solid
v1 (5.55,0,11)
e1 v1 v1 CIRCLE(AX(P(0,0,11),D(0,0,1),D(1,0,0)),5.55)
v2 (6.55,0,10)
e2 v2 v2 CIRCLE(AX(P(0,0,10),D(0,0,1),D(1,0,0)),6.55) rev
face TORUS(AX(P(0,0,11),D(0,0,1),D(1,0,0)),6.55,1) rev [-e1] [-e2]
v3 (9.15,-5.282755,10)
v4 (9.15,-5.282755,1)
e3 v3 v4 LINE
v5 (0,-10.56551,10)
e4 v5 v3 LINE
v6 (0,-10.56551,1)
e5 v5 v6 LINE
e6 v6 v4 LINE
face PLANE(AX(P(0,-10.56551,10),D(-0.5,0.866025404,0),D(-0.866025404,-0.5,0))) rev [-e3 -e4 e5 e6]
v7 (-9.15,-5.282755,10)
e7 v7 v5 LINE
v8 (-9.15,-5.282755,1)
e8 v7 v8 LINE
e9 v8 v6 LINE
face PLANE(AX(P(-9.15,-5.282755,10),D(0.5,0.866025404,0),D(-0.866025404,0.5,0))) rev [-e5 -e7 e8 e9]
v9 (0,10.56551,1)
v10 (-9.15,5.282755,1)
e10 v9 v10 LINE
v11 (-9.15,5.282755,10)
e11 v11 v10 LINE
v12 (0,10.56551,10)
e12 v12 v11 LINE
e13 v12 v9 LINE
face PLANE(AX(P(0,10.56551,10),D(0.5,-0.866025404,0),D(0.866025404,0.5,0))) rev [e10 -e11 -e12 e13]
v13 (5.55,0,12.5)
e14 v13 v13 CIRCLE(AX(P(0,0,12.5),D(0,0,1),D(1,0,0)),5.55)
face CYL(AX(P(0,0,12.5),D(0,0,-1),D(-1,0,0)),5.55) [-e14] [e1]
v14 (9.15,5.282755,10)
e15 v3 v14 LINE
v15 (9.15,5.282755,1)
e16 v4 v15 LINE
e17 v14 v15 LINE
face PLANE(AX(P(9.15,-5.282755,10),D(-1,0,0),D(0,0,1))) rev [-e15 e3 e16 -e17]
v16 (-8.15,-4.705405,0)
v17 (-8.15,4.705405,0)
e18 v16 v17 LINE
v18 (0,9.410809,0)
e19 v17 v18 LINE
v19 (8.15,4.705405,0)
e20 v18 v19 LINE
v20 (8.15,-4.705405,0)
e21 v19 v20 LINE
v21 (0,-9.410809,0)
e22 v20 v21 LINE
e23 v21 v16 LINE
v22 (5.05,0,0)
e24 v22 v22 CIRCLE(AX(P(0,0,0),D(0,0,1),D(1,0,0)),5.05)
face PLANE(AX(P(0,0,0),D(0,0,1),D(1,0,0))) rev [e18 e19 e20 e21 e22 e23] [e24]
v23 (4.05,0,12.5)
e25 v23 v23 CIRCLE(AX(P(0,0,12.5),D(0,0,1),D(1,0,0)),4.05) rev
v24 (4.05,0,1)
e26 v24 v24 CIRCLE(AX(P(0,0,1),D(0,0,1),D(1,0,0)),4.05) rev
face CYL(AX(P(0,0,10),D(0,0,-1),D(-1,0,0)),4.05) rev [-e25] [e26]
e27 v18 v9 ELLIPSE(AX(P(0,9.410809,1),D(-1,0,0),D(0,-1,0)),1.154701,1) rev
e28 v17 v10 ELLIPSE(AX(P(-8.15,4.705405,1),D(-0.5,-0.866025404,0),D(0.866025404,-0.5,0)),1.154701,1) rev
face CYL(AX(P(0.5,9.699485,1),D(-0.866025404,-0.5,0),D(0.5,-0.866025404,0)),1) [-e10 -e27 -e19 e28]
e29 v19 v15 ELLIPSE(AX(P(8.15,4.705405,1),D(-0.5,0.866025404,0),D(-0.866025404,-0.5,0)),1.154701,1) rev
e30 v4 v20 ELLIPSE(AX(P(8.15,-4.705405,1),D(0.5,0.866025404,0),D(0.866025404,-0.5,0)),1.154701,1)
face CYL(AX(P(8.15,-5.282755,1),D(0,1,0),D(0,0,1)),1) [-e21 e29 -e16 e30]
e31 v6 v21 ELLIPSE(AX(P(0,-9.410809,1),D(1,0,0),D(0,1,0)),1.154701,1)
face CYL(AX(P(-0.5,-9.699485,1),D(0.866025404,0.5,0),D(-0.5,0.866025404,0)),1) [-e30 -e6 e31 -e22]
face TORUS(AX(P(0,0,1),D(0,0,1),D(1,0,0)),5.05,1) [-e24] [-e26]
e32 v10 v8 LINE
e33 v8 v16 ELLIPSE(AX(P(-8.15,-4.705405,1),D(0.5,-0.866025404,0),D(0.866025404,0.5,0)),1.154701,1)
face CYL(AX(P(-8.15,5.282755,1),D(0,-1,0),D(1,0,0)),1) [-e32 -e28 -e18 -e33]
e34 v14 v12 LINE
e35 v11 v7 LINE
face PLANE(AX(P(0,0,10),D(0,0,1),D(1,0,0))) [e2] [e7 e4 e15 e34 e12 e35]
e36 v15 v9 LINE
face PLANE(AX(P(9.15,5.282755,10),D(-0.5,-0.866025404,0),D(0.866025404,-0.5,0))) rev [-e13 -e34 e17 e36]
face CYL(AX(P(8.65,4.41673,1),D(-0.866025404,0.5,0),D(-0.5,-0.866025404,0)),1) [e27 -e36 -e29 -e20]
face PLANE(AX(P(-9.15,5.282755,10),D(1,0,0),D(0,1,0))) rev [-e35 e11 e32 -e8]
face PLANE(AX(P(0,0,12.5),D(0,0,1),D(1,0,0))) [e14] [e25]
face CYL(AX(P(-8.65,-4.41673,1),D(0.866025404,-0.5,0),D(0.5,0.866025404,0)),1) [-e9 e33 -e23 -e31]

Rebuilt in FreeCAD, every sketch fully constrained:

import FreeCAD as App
import Part
import Sketcher
Q = App.Units.Quantity


def edges_at(feature, points):
    """Names of the edges that pass closest to the given points."""
    edges = feature.Shape.Edges
    near = lambda p: min(range(len(edges)), key=lambda i: edges[i].distToShape(Part.Vertex(*p))[0])
    return sorted({f"Edge{near(p) + 1}" for p in points})

doc = App.newDocument("Part")
body = doc.addObject("PartDesign::Body", "Body")

# Sketch on XY plane
sketch1 = body.newObject("Sketcher::SketchObject", "Sketch")
sketch1.AttachmentSupport = (doc.getObject("XY_Plane"), [""])
sketch1.MapMode = "FlatFace"
sketch1.addGeometry(Part.LineSegment(App.Vector(9.2, -5.3, 0), App.Vector(9.2, 5.3, 0)), False)
sketch1.addGeometry(Part.LineSegment(App.Vector(9.2, 5.3, 0), App.Vector(0, 10.6, 0)), False)
sketch1.addGeometry(Part.LineSegment(App.Vector(0, 10.6, 0), App.Vector(-9.2, 5.3, 0)), False)
sketch1.addGeometry(Part.LineSegment(App.Vector(-9.2, 5.3, 0), App.Vector(-9.2, -5.3, 0)), False)
sketch1.addGeometry(Part.LineSegment(App.Vector(-9.2, -5.3, 0), App.Vector(0, -10.6, 0)), False)
sketch1.addGeometry(Part.LineSegment(App.Vector(0, -10.6, 0), App.Vector(9.2, -5.3, 0)), False)
sketch1.addGeometry(Part.Circle(App.Vector(0, 0, 0), App.Vector(0, 0, 1), 4), False)
sketch1.addConstraint(Sketcher.Constraint("Coincident", 0, 2, 1, 1))
sketch1.addConstraint(Sketcher.Constraint("Coincident", 1, 2, 2, 1))
sketch1.addConstraint(Sketcher.Constraint("Coincident", 2, 2, 3, 1))
sketch1.addConstraint(Sketcher.Constraint("Coincident", 3, 2, 4, 1))
sketch1.addConstraint(Sketcher.Constraint("Coincident", 4, 2, 5, 1))
sketch1.addConstraint(Sketcher.Constraint("Coincident", 5, 2, 0, 1))
sketch1.addConstraint(Sketcher.Constraint("Vertical", 0))
sketch1.addConstraint(Sketcher.Constraint("Vertical", 3))
sketch1.addConstraint(Sketcher.Constraint("Coincident", 6, 3, -1, 1))
sketch1.addConstraint(Sketcher.Constraint("Symmetric", 0, 2, 3, 2, -1, 1))
sketch1.addConstraint(Sketcher.Constraint("Symmetric", 1, 2, 4, 2, -1, 1))
sketch1.addConstraint(Sketcher.Constraint("PointOnObject", 1, 2, -2))
sketch1.addConstraint(Sketcher.Constraint("Parallel", 2, 5))
sketch1.addConstraint(Sketcher.Constraint("Horizontal", 0, 2, 2, 2))
sketch1.addConstraint(Sketcher.Constraint("Diameter", 6, Q("8.1 mm")))
sketch1.addConstraint(Sketcher.Constraint("Angle", 1, Q("150 deg")))
sketch1.addConstraint(Sketcher.Constraint("DistanceX", 2, 2, 0, 2, Q("18.3 mm")))
sketch1.addConstraint(Sketcher.Constraint("DistanceY", 0, 1, 0, 2, Q("10.56551 mm")))
pad1 = body.newObject("PartDesign::Pad", "Pad")
pad1.Profile = sketch1
pad1.Length = 10

# Sketch on XY plane
sketch2 = body.newObject("Sketcher::SketchObject", "Sketch001")
sketch2.AttachmentSupport = (doc.getObject("XY_Plane"), [""])
sketch2.MapMode = "FlatFace"
sketch2.AttachmentOffset = App.Placement(App.Vector(0, 0, 10), App.Rotation())
sketch2.addGeometry(Part.Circle(App.Vector(0, 0, 0), App.Vector(0, 0, 1), 5.5), False)
sketch2.addGeometry(Part.Circle(App.Vector(0, 0, 0), App.Vector(0, 0, 1), 4), False)
sketch2.addConstraint(Sketcher.Constraint("Coincident", 0, 3, -1, 1))
sketch2.addConstraint(Sketcher.Constraint("Coincident", 1, 3, -1, 1))
sketch2.addConstraint(Sketcher.Constraint("Diameter", 0, Q("11.1 mm")))
sketch2.addConstraint(Sketcher.Constraint("Diameter", 1, Q("8.1 mm")))
pad2 = body.newObject("PartDesign::Pad", "Pad001")
pad2.Profile = sketch2
pad2.Length = 2.5
doc.recompute()

fillet = body.newObject("PartDesign::Fillet", "Fillet")
fillet.Base = (pad2, edges_at(pad2, [
    (-4.05, 0, 0),
    (-5.55, 0, 10),
    (-4.575, -7.924, 0),
    (-9.15, 0, 0),
    (-4.575, 7.924, 0),
    (4.575, 7.924, 0),
    (9.15, 0, 0),
    (4.575, -7.924, 0),
]))
fillet.Radius = 1

doc.recompute()
